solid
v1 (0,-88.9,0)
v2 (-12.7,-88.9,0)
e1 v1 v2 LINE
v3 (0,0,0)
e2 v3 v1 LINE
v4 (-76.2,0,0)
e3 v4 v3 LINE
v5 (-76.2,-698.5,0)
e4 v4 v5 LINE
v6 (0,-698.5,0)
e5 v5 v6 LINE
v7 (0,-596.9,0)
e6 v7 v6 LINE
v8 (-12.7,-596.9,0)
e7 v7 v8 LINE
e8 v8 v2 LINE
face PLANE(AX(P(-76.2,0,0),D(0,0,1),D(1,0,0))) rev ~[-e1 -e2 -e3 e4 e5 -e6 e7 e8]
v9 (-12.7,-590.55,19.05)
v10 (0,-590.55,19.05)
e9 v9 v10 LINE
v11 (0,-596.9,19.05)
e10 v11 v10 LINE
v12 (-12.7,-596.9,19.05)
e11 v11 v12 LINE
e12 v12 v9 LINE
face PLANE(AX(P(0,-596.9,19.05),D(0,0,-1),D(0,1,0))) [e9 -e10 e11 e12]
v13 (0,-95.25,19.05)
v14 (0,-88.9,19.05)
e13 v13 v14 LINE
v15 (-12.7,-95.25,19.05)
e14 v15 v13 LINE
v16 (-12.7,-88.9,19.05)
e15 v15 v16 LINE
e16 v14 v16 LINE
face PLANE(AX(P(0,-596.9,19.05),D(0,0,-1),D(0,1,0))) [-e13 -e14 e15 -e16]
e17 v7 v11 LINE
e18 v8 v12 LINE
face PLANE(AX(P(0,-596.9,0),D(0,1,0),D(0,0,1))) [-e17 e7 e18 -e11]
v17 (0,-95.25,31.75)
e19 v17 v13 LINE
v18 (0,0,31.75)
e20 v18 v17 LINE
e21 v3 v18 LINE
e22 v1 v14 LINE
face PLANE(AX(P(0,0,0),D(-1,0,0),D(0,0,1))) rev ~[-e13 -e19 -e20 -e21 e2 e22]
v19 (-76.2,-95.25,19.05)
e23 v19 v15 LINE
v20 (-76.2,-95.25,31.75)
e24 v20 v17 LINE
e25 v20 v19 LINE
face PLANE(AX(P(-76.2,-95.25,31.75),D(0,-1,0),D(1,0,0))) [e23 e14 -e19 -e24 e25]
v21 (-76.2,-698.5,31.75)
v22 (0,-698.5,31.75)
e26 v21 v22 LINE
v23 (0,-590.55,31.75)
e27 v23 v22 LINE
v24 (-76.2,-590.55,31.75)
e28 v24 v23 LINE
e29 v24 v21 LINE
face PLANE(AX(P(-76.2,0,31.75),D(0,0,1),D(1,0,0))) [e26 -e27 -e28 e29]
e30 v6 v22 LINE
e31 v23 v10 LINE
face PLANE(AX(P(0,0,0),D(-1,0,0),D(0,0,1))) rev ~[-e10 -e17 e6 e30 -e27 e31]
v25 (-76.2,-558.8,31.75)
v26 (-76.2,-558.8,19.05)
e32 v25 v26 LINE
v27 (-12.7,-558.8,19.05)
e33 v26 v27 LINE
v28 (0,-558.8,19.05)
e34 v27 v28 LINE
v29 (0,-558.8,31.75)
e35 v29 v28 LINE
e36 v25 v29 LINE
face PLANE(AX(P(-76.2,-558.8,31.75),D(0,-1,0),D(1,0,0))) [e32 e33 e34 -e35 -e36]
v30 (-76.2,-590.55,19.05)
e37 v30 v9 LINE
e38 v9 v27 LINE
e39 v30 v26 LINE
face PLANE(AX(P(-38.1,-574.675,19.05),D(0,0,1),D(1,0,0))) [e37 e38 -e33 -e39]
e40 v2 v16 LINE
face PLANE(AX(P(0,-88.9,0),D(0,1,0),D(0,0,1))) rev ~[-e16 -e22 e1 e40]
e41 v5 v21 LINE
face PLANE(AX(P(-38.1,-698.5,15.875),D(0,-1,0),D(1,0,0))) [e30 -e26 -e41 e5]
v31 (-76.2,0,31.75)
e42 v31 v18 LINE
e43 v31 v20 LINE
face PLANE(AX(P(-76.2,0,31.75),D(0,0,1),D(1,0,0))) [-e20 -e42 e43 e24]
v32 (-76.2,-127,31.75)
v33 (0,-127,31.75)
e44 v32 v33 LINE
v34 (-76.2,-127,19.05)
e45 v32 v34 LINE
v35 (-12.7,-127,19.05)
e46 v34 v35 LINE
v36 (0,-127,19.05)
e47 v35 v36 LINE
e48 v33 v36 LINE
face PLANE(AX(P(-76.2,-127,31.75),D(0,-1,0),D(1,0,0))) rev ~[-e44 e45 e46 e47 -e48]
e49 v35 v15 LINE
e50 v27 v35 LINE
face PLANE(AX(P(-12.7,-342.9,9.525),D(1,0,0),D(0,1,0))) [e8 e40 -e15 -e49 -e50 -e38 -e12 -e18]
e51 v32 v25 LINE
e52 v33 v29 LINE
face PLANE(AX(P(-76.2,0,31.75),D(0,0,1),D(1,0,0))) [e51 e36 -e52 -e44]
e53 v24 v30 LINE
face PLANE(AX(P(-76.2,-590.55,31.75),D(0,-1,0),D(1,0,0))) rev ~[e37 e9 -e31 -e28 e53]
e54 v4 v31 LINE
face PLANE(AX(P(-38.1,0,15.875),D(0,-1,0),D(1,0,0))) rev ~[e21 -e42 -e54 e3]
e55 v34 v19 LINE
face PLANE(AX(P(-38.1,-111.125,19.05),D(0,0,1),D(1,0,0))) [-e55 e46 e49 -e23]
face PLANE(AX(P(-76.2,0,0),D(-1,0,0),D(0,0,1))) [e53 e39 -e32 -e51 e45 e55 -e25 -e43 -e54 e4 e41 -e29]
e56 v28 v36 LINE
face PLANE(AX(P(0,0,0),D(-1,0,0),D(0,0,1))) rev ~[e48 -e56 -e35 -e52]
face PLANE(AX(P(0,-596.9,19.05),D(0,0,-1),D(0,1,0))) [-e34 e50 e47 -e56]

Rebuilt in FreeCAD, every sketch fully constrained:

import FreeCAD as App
import Part
import Sketcher
from FreeCAD import Vector
Q = App.Units.Quantity

doc = App.newDocument("Part")
body = doc.addObject("PartDesign::Body", "Body")

sketch1 = body.newObject("Sketcher::SketchObject", "Sketch")
sketch1.AttachmentSupport = (doc.getObject("XZ_Plane"), [""])
sketch1.MapMode = "FlatFace"
sketch1.addGeometry(Part.LineSegment(Vector(-76, 32, 0), Vector(-76, 0, 0)), False)
sketch1.addGeometry(Part.LineSegment(Vector(-76, 0, 0), Vector(0, 0, 0)), False)
sketch1.addGeometry(Part.LineSegment(Vector(0, 0, 0), Vector(0, 32, 0)), False)
sketch1.addGeometry(Part.LineSegment(Vector(0, 32, 0), Vector(-76, 32, 0)), False)
sketch1.addConstraint(Sketcher.Constraint("Coincident", 0, 2, 1, 1))
sketch1.addConstraint(Sketcher.Constraint("Coincident", 1, 2, 2, 1))
sketch1.addConstraint(Sketcher.Constraint("Coincident", 2, 2, 3, 1))
sketch1.addConstraint(Sketcher.Constraint("Coincident", 3, 2, 0, 1))
sketch1.addConstraint(Sketcher.Constraint("Vertical", 0))
sketch1.addConstraint(Sketcher.Constraint("Horizontal", 1))
sketch1.addConstraint(Sketcher.Constraint("Vertical", 2))
sketch1.addConstraint(Sketcher.Constraint("Horizontal", 3))
sketch1.addConstraint(Sketcher.Constraint("Coincident", 1, 2, -1, 1))
sketch1.addConstraint(Sketcher.Constraint("DistanceX", 1, 1, 1, 2, Q("3 in")))
sketch1.addConstraint(Sketcher.Constraint("DistanceY", 0, 2, 0, 1, Q("1.25 in")))
pad1 = body.newObject("PartDesign::Pad", "Pad")
pad1.Profile = sketch1
pad1.Length = Q("27.5 in")

sketch2 = body.newObject("Sketcher::SketchObject", "Sketch001")
sketch2.AttachmentSupport = (doc.getObject("YZ_Plane"), [""])
sketch2.MapMode = "FlatFace"
sketch2.addGeometry(Part.LineSegment(Vector(-597, 19, 0), Vector(-597, 0, 0)), False)
sketch2.addGeometry(Part.LineSegment(Vector(-597, 0, 0), Vector(-89, 0, 0)), False)
sketch2.addGeometry(Part.LineSegment(Vector(-89, 0, 0), Vector(-89, 19, 0)), False)
sketch2.addGeometry(Part.LineSegment(Vector(-89, 19, 0), Vector(-597, 19, 0)), False)
sketch2.addConstraint(Sketcher.Constraint("Coincident", 0, 2, 1, 1))
sketch2.addConstraint(Sketcher.Constraint("Coincident", 1, 2, 2, 1))
sketch2.addConstraint(Sketcher.Constraint("Coincident", 2, 2, 3, 1))
sketch2.addConstraint(Sketcher.Constraint("Coincident", 3, 2, 0, 1))
sketch2.addConstraint(Sketcher.Constraint("Vertical", 0))
sketch2.addConstraint(Sketcher.Constraint("Horizontal", 1))
sketch2.addConstraint(Sketcher.Constraint("Vertical", 2))
sketch2.addConstraint(Sketcher.Constraint("Horizontal", 3))
sketch2.addConstraint(Sketcher.Constraint("PointOnObject", 0, 2, -1))
sketch2.addConstraint(Sketcher.Constraint("DistanceX", 1, 1, 1, 2, Q("20 in")))
sketch2.addConstraint(Sketcher.Constraint("DistanceY", 0, 2, 0, 1, Q("0.75 in")))
sketch2.addConstraint(Sketcher.Constraint("DistanceX", 0, 2, -1, 1, Q("23.5 in")))
pocket1 = body.newObject("PartDesign::Pocket", "Pocket")
pocket1.Profile = sketch2
pocket1.Length = Q("0.5 in")

sketch3 = body.newObject("Sketcher::SketchObject", "Sketch002")
sketch3.AttachmentSupport = (doc.getObject("XY_Plane"), [""])
sketch3.MapMode = "FlatFace"
sketch3.AttachmentOffset = App.Placement(Vector(0, 0, 1.25 * 25.4), App.Rotation())
sketch3.addGeometry(Part.LineSegment(Vector(-76, -559, 0), Vector(-76, -591, 0)), False)
sketch3.addGeometry(Part.LineSegment(Vector(-76, -591, 0), Vector(0, -591, 0)), False)
sketch3.addGeometry(Part.LineSegment(Vector(0, -591, 0), Vector(0, -559, 0)), False)
sketch3.addGeometry(Part.LineSegment(Vector(0, -559, 0), Vector(-76, -559, 0)), False)
sketch3.addGeometry(Part.LineSegment(Vector(-76, -95, 0), Vector(-76, -127, 0)), False)
sketch3.addGeometry(Part.LineSegment(Vector(-76, -127, 0), Vector(0, -127, 0)), False)
sketch3.addGeometry(Part.LineSegment(Vector(0, -127, 0), Vector(0, -95, 0)), False)
sketch3.addGeometry(Part.LineSegment(Vector(0, -95, 0), Vector(-76, -95, 0)), False)
sketch3.addConstraint(Sketcher.Constraint("Coincident", 0, 2, 1, 1))
sketch3.addConstraint(Sketcher.Constraint("Coincident", 1, 2, 2, 1))
sketch3.addConstraint(Sketcher.Constraint("Coincident", 2, 2, 3, 1))
sketch3.addConstraint(Sketcher.Constraint("Coincident", 3, 2, 0, 1))
sketch3.addConstraint(Sketcher.Constraint("Coincident", 4, 2, 5, 1))
sketch3.addConstraint(Sketcher.Constraint("Coincident", 5, 2, 6, 1))
sketch3.addConstraint(Sketcher.Constraint("Coincident", 6, 2, 7, 1))
sketch3.addConstraint(Sketcher.Constraint("Coincident", 7, 2, 4, 1))
sketch3.addConstraint(Sketcher.Constraint("Vertical", 0))
sketch3.addConstraint(Sketcher.Constraint("Horizontal", 1))
sketch3.addConstraint(Sketcher.Constraint("Vertical", 2))
sketch3.addConstraint(Sketcher.Constraint("Horizontal", 3))
sketch3.addConstraint(Sketcher.Constraint("Vertical", 4))
sketch3.addConstraint(Sketcher.Constraint("Horizontal", 5))
sketch3.addConstraint(Sketcher.Constraint("Vertical", 6))
sketch3.addConstraint(Sketcher.Constraint("Horizontal", 7))
sketch3.addConstraint(Sketcher.Constraint("PointOnObject", 1, 2, -2))
sketch3.addConstraint(Sketcher.Constraint("PointOnObject", 5, 2, -2))
sketch3.addConstraint(Sketcher.Constraint("Vertical", 3, 2, 4, 2))
sketch3.addConstraint(Sketcher.Constraint("Equal", 2, 4))
sketch3.addConstraint(Sketcher.Constraint("DistanceX", 1, 1, 1, 2, Q("3 in")))
sketch3.addConstraint(Sketcher.Constraint("DistanceY", 2, 2, -1, 1, Q("22 in")))
sketch3.addConstraint(Sketcher.Constraint("DistanceY", 4, 2, -1, 1, Q("5 in")))
sketch3.addConstraint(Sketcher.Constraint("DistanceY", 0, 2, 0, 1, Q("1.25 in")))
pocket2 = body.newObject("PartDesign::Pocket", "Pocket001")
pocket2.Profile = sketch3
pocket2.Length = Q("0.5 in")

doc.recompute()
